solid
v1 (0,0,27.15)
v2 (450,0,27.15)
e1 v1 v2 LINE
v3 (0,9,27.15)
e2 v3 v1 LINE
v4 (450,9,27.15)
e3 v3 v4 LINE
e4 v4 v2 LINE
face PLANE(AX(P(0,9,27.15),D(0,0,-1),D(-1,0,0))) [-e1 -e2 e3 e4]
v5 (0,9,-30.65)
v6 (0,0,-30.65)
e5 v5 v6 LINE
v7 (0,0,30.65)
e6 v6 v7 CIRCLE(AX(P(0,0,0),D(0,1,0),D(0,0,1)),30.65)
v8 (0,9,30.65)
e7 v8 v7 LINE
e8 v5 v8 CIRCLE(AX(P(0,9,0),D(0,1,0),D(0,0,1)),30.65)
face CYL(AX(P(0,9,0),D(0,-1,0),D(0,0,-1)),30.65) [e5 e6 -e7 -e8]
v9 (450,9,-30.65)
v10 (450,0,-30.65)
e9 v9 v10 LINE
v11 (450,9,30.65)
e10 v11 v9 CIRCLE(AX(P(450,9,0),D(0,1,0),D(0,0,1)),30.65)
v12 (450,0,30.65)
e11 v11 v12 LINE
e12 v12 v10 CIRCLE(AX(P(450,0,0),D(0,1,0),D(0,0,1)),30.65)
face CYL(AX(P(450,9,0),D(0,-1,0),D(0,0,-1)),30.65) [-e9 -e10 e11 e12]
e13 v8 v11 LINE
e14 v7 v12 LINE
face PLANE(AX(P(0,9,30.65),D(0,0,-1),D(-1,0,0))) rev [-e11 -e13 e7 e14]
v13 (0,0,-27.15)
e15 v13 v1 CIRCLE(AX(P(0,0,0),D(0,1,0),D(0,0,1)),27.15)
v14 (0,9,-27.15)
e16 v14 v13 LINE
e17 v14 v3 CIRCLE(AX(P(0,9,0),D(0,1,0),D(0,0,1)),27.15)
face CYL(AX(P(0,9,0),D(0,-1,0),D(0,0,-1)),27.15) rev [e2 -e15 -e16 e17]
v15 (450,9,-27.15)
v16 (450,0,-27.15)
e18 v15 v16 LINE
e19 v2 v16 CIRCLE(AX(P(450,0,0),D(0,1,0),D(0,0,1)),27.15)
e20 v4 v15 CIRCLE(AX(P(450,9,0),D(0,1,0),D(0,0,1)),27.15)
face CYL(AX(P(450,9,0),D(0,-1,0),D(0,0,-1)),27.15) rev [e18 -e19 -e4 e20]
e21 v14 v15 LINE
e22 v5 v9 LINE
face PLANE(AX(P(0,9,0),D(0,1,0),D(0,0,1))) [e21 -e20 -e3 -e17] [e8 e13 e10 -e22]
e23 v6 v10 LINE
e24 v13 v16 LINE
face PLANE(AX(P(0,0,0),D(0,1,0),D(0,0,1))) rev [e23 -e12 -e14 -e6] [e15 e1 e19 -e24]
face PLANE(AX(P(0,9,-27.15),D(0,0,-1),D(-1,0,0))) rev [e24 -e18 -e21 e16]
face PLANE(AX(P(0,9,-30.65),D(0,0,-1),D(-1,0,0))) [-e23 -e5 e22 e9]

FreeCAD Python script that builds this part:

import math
import FreeCAD as App
import Part
import Sketcher
Q = App.Units.Quantity

doc = App.newDocument("Part")
body = doc.addObject("PartDesign::Body", "Body")

sketch1 = doc.addObject("Sketcher::SketchObject", "Sketch")
body.addObject(sketch1)
sketch1.AttachmentSupport = (doc.XZ_Plane, [""])
sketch1.MapMode = "FlatFace"
sketch1.addGeometry([
    Part.LineSegment(App.Vector(450, -31, 0), App.Vector(0, -31, 0)),
    Part.ArcOfCircle(Part.Circle(App.Vector(0, 0, 0), App.Vector(0, 0, 1), 31), math.radians(90), math.radians(270)),
    Part.LineSegment(App.Vector(0, 31, 0), App.Vector(450, 31, 0)),
    Part.ArcOfCircle(Part.Circle(App.Vector(450, 0, 0), App.Vector(0, 0, 1), 31), math.radians(-90), math.radians(90)),
    Part.LineSegment(App.Vector(0, -27, 0), App.Vector(450, -27, 0)),
    Part.ArcOfCircle(Part.Circle(App.Vector(450, 0, 0), App.Vector(0, 0, 1), 27), math.radians(-90), math.radians(90)),
    Part.LineSegment(App.Vector(450, 27, 0), App.Vector(0, 27, 0)),
    Part.ArcOfCircle(Part.Circle(App.Vector(0, 0, 0), App.Vector(0, 0, 1), 27), math.radians(90), math.radians(270)),
], False)
sketch1.addConstraint([
    Sketcher.Constraint("Tangent", 0, 2, 1, 2),
    Sketcher.Constraint("Tangent", 1, 1, 2, 1),
    Sketcher.Constraint("Tangent", 2, 2, 3, 2),
    Sketcher.Constraint("Tangent", 3, 1, 0, 1),
    Sketcher.Constraint("Tangent", 4, 2, 5, 1),
    Sketcher.Constraint("Tangent", 5, 2, 6, 1),
    Sketcher.Constraint("Tangent", 6, 2, 7, 1),
    Sketcher.Constraint("Tangent", 7, 2, 4, 1),
    Sketcher.Constraint("Horizontal", 0),
    Sketcher.Constraint("Horizontal", 2),
    Sketcher.Constraint("Horizontal", 4),
    Sketcher.Constraint("Horizontal", 6),
    Sketcher.Constraint("Coincident", 1, 3, -1, 1),
    Sketcher.Constraint("Coincident", 7, 3, -1, 1),
    Sketcher.Constraint("Vertical", 5, 3, 2, 2),
    Sketcher.Constraint("DistanceX", 0, 2, 0, 1, Q("450 mm")),
    Sketcher.Constraint("Radius", 1, Q("30.65 mm")),
    Sketcher.Constraint("Radius", 5, Q("27.15 mm")),
])
pad1 = doc.addObject("PartDesign::Pad", "Pad")
body.addObject(pad1)
pad1.Profile = sketch1
pad1.Length = 9
pad1.Reversed = True

doc.recompute()
